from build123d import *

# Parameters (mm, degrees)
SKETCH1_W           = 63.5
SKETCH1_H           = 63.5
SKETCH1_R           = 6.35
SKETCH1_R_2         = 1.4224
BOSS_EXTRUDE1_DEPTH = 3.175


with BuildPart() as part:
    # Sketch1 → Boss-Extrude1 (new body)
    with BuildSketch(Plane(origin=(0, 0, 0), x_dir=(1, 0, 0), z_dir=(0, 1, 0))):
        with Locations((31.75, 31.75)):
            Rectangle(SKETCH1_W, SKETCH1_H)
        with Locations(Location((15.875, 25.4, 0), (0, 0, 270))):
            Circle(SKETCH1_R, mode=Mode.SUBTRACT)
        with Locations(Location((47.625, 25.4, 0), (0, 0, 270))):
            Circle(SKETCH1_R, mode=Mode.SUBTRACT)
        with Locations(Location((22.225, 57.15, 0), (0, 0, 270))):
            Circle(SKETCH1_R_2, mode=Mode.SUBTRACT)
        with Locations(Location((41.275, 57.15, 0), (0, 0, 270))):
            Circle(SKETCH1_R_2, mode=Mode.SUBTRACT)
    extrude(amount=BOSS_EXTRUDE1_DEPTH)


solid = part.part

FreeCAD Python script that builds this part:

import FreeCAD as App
import Part
import Sketcher

V = App.Vector
Q = App.Units.Quantity

doc = App.newDocument("Part")
body = doc.addObject("PartDesign::Body", "Body")

# Sketch on XZ plane
sketch1 = doc.addObject("Sketcher::SketchObject", "Sketch")
body.addObject(sketch1)
sketch1.AttachmentSupport = (doc.XZ_Plane, [""])
sketch1.MapMode = "FlatFace"
sketch1.addGeometry([
    Part.LineSegment(V(0, -63.5, 0), V(0, 0, 0)),  # 0
    Part.LineSegment(V(0, 0, 0), V(63.5, 0, 0)),  # 1
    Part.LineSegment(V(63.5, 0, 0), V(63.5, -63.5, 0)),  # 2
    Part.LineSegment(V(63.5, -63.5, 0), V(0, -63.5, 0)),  # 3
    Part.Circle(V(15.875, -25.4, 0), V(0, 0, 1), 6.35),  # 4
    Part.Circle(V(47.625, -25.4, 0), V(0, 0, 1), 6.35),  # 5
    Part.Circle(V(22.225, -57.15, 0), V(0, 0, 1), 1.4224),  # 6
    Part.Circle(V(41.275, -57.15, 0), V(0, 0, 1), 1.4224),  # 7
], False)
sketch1.addConstraint([
    Sketcher.Constraint("Coincident", 0, 2, 1, 1),
    Sketcher.Constraint("Coincident", 1, 2, 2, 1),
    Sketcher.Constraint("Coincident", 2, 2, 3, 1),
    Sketcher.Constraint("Coincident", 3, 2, 0, 1),
    Sketcher.Constraint("Vertical", 0),
    Sketcher.Constraint("Horizontal", 1),
    Sketcher.Constraint("Vertical", 2),
    Sketcher.Constraint("Horizontal", 3),
    Sketcher.Constraint("Coincident", 0, 2, -1, 1),
    Sketcher.Constraint("Equal", 4, 5),
    Sketcher.Constraint("Equal", 6, 7),
    Sketcher.Constraint("Horizontal", 4, 3, 5, 3),
    Sketcher.Constraint("Horizontal", 6, 3, 7, 3),
    Sketcher.Constraint("Equal", 3, 0),
    Sketcher.Constraint("Diameter", 4, Q("0.5 in")),
    Sketcher.Constraint("Diameter", 6, Q("0.112 in")),
    Sketcher.Constraint("DistanceX", 1, 1, 1, 2, Q("2.5 in")),
    Sketcher.Constraint("DistanceY", 4, 3, -1, 1, Q("1 in")),
    Sketcher.Constraint("DistanceX", 6, 3, 5, 3, Q("1 in")),
    Sketcher.Constraint("DistanceX", 4, 3, 7, 3, Q("1 in")),
    Sketcher.Constraint("DistanceY", 6, 3, -1, 1, Q("2.25 in")),
    Sketcher.Constraint("DistanceX", 4, 3, 5, 3, Q("1.25 in")),
    Sketcher.Constraint("DistanceX", -1, 1, 4, 3, Q("0.625 in")),
])
pad1 = doc.addObject("PartDesign::Pad", "Pad")
body.addObject(pad1)
pad1.Profile = sketch1
pad1.Length = Q("0.125 in")
pad1.Reversed = True

doc.recompute()
